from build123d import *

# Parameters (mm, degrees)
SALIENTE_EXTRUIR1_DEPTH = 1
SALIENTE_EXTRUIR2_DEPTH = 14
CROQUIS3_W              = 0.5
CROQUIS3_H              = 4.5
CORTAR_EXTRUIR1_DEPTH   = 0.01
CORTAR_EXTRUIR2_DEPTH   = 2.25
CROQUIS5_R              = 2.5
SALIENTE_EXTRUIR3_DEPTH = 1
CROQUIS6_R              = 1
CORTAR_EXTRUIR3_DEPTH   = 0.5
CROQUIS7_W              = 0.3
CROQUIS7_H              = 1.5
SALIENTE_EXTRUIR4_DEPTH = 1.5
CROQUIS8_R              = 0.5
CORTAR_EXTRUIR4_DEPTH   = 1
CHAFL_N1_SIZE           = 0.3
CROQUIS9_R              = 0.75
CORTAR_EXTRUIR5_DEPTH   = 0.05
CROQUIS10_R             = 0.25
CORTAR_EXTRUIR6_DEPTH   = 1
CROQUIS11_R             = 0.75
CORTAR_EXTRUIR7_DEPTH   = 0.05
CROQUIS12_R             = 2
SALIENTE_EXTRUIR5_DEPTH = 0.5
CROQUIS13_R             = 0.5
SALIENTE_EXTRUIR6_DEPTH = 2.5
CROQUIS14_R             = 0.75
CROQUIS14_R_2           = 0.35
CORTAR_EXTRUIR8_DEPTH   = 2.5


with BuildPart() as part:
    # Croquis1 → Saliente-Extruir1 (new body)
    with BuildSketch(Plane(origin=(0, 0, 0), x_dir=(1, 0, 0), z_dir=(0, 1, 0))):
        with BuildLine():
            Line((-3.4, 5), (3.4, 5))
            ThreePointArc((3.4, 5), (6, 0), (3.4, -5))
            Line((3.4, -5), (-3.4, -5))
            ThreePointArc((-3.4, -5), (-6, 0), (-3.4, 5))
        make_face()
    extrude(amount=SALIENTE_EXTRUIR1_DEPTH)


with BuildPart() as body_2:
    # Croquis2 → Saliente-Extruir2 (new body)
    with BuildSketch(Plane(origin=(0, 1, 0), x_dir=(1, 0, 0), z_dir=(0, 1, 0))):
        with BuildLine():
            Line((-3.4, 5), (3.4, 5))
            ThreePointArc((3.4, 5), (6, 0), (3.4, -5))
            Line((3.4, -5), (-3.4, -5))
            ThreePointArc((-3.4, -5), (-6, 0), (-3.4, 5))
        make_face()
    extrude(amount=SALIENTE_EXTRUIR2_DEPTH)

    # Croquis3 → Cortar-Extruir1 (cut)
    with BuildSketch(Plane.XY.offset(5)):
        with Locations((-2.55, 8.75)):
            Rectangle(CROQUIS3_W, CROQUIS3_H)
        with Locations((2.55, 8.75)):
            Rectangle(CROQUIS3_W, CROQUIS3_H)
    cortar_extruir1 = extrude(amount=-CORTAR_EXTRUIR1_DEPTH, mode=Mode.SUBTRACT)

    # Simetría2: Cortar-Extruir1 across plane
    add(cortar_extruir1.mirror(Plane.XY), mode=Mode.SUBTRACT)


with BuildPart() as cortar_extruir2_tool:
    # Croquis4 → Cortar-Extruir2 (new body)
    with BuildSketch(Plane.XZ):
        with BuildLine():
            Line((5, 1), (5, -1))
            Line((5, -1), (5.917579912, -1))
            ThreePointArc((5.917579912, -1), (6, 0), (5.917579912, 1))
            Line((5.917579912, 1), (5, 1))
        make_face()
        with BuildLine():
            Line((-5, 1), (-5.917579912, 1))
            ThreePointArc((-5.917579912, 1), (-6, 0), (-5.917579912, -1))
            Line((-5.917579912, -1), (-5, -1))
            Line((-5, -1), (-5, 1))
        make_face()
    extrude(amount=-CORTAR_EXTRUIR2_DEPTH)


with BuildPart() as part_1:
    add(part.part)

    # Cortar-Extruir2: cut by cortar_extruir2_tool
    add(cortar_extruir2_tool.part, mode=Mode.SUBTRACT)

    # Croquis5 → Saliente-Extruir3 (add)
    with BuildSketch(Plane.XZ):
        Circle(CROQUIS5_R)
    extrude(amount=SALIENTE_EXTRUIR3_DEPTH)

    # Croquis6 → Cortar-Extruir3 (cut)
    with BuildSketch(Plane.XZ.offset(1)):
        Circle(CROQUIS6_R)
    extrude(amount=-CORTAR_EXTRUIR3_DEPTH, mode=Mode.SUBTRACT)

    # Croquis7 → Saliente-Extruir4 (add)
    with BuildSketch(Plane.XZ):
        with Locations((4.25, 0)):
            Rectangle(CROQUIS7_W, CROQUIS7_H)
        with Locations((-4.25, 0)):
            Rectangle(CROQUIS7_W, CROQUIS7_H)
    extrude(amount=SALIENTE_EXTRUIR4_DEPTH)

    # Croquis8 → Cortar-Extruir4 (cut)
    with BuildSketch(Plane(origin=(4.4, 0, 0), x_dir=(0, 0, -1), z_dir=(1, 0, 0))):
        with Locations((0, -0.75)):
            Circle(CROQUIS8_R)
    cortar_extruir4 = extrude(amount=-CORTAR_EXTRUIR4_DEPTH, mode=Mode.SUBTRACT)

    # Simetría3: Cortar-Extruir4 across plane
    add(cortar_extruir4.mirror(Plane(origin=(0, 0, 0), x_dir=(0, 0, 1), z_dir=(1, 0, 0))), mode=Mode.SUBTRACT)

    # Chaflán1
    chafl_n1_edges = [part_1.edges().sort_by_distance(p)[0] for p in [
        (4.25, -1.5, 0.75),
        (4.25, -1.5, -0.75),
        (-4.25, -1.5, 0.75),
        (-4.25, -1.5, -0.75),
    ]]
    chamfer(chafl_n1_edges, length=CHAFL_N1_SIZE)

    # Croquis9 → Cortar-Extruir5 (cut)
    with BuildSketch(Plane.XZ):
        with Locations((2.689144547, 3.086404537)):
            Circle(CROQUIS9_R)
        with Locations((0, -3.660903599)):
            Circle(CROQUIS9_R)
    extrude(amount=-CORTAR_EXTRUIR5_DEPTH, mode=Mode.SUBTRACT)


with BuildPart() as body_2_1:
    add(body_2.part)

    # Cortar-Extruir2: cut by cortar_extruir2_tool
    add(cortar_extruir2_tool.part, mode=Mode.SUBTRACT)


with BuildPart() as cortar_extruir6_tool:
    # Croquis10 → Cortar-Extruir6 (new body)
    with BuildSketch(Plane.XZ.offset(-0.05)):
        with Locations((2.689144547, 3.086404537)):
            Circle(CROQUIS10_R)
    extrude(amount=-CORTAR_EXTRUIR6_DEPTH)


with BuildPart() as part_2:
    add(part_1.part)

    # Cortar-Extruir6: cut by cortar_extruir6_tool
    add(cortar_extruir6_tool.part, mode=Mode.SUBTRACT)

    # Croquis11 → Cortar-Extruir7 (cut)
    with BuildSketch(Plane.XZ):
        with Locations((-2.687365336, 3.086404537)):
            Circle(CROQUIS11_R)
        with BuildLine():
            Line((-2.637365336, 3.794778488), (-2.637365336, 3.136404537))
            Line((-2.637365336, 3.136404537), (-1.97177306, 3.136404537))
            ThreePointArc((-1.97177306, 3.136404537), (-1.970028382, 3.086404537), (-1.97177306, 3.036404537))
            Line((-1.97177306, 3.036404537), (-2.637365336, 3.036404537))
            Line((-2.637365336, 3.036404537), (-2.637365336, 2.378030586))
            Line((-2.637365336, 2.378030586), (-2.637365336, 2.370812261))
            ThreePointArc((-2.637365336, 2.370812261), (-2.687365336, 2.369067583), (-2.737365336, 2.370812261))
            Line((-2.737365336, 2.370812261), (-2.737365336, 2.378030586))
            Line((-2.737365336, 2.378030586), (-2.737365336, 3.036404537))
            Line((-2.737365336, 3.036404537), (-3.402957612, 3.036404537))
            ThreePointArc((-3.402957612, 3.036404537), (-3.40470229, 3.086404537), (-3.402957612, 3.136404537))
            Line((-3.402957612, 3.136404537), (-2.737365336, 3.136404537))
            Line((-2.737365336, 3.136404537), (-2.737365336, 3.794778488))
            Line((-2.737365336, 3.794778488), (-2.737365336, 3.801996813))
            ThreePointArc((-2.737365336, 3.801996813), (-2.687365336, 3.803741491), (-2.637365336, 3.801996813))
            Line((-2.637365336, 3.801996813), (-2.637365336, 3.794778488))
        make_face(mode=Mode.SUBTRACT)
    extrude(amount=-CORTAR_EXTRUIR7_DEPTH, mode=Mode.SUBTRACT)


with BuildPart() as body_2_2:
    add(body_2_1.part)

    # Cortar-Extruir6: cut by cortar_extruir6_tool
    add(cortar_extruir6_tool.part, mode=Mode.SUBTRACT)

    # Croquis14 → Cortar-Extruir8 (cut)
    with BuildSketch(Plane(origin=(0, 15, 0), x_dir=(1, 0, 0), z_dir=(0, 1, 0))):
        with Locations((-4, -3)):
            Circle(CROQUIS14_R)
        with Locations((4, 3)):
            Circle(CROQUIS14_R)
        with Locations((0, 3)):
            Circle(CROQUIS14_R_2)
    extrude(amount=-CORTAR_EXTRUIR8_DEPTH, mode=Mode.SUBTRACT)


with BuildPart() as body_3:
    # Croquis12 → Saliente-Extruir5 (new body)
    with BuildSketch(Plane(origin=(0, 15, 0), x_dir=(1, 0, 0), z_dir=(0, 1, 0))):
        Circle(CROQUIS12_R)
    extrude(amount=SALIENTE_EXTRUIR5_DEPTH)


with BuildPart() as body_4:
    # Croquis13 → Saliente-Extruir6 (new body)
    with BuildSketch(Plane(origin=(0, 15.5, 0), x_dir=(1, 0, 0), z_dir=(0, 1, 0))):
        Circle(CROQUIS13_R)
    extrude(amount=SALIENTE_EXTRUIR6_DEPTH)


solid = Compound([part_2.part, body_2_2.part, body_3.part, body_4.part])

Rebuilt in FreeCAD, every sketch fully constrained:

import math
import FreeCAD as App
import Part
import Sketcher

V = App.Vector
Q = App.Units.Quantity


def edges_at(feature, points):
    """Names of the edges that pass closest to the given points."""
    edges = feature.Shape.Edges
    near = lambda p: min(range(len(edges)), key=lambda i: edges[i].distToShape(Part.Vertex(*p))[0])
    return sorted({f"Edge{near(p) + 1}" for p in points})

doc = App.newDocument("Part")
body = doc.addObject("PartDesign::Body", "Body")

# Sketch on XZ plane
sketch1 = body.newObject("Sketcher::SketchObject", "Sketch")
sketch1.AttachmentSupport = (doc.getObject("XZ_Plane"), [""])
sketch1.MapMode = "FlatFace"
sketch1.addGeometry(Part.LineSegment(V(3, -5, 0), V(-3, -5, 0)), False)
sketch1.addGeometry(Part.ArcOfCircle(Part.Circle(V(0, 0, 0), V(0, 0, 1), 6), math.radians(125), math.radians(235)), False)
sketch1.addGeometry(Part.LineSegment(V(-3, 5, 0), V(3, 5, 0)), False)
sketch1.addGeometry(Part.ArcOfCircle(Part.Circle(V(0, 0, 0), V(0, 0, 1), 6), math.radians(-55), math.radians(55)), False)
sketch1.addConstraint(Sketcher.Constraint("Coincident", 0, 2, 1, 2))
sketch1.addConstraint(Sketcher.Constraint("Coincident", 1, 1, 2, 1))
sketch1.addConstraint(Sketcher.Constraint("Coincident", 2, 2, 3, 2))
sketch1.addConstraint(Sketcher.Constraint("Coincident", 3, 1, 0, 1))
sketch1.addConstraint(Sketcher.Constraint("Horizontal", 0))
sketch1.addConstraint(Sketcher.Constraint("Horizontal", 2))
sketch1.addConstraint(Sketcher.Constraint("Equal", 1, 3))
sketch1.addConstraint(Sketcher.Constraint("Symmetric", 1, 3, 3, 3, -1, 1))
sketch1.addConstraint(Sketcher.Constraint("Symmetric", 0, 2, 1, 1, -1))
sketch1.addConstraint(Sketcher.Constraint("DistanceX", 0, 2, 0, 1, Q("6.8 mm")))
sketch1.addConstraint(Sketcher.Constraint("DistanceY", 0, 2, -1, 1, Q("5 mm")))
sketch1.addConstraint(Sketcher.Constraint("Radius", 1, Q("6.107692 mm")))
pad1 = body.newObject("PartDesign::Pad", "Pad")
pad1.Profile = sketch1
pad1.Length = 1
pad1.Reversed = True
body2 = doc.addObject("PartDesign::Body", "Body001")

# Sketch on XZ plane
sketch2 = body2.newObject("Sketcher::SketchObject", "Sketch001")
sketch2.AttachmentSupport = (doc.getObject("XZ_Plane001"), [""])
sketch2.MapMode = "FlatFace"
sketch2.AttachmentOffset = App.Placement(V(0, 0, -1), App.Rotation())
sketch2.addGeometry(Part.LineSegment(V(3, -5, 0), V(-3, -5, 0)), False)
sketch2.addGeometry(Part.ArcOfCircle(Part.Circle(V(0, 0, 0), V(0, 0, 1), 6), math.radians(125), math.radians(235)), False)
sketch2.addGeometry(Part.LineSegment(V(-3, 5, 0), V(3, 5, 0)), False)
sketch2.addGeometry(Part.ArcOfCircle(Part.Circle(V(0, 0, 0), V(0, 0, 1), 6), math.radians(-55), math.radians(55)), False)
sketch2.addConstraint(Sketcher.Constraint("Coincident", 0, 2, 1, 2))
sketch2.addConstraint(Sketcher.Constraint("Coincident", 1, 1, 2, 1))
sketch2.addConstraint(Sketcher.Constraint("Coincident", 2, 2, 3, 2))
sketch2.addConstraint(Sketcher.Constraint("Coincident", 3, 1, 0, 1))
sketch2.addConstraint(Sketcher.Constraint("Horizontal", 0))
sketch2.addConstraint(Sketcher.Constraint("Horizontal", 2))
sketch2.addConstraint(Sketcher.Constraint("Equal", 1, 3))
sketch2.addConstraint(Sketcher.Constraint("Symmetric", 1, 3, 3, 3, -1, 1))
sketch2.addConstraint(Sketcher.Constraint("Symmetric", 0, 2, 1, 1, -1))
sketch2.addConstraint(Sketcher.Constraint("DistanceX", 0, 2, 0, 1, Q("6.8 mm")))
sketch2.addConstraint(Sketcher.Constraint("DistanceY", 0, 2, -1, 1, Q("5 mm")))
sketch2.addConstraint(Sketcher.Constraint("Radius", 1, Q("6.107692 mm")))
pad2 = body2.newObject("PartDesign::Pad", "Pad001")
pad2.Profile = sketch2
pad2.Length = 14
pad2.Reversed = True

# Sketch on XY plane
sketch3 = body2.newObject("Sketcher::SketchObject", "Sketch002")
sketch3.AttachmentSupport = (doc.getObject("XY_Plane001"), [""])
sketch3.MapMode = "FlatFace"
sketch3.AttachmentOffset = App.Placement(V(0, 0, 5), App.Rotation())
sketch3.addGeometry(Part.LineSegment(V(-2.8, 11, 0), V(-2.8, 6.5, 0)), False)
sketch3.addGeometry(Part.LineSegment(V(-2.8, 6.5, 0), V(-2.3, 6.5, 0)), False)
sketch3.addGeometry(Part.LineSegment(V(-2.3, 6.5, 0), V(-2.3, 11, 0)), False)
sketch3.addGeometry(Part.LineSegment(V(-2.3, 11, 0), V(-2.8, 11, 0)), False)
sketch3.addGeometry(Part.LineSegment(V(2.3, 11, 0), V(2.3, 6.5, 0)), False)
sketch3.addGeometry(Part.LineSegment(V(2.3, 6.5, 0), V(2.8, 6.5, 0)), False)
sketch3.addGeometry(Part.LineSegment(V(2.8, 6.5, 0), V(2.8, 11, 0)), False)
sketch3.addGeometry(Part.LineSegment(V(2.8, 11, 0), V(2.3, 11, 0)), False)
sketch3.addConstraint(Sketcher.Constraint("Coincident", 0, 2, 1, 1))
sketch3.addConstraint(Sketcher.Constraint("Coincident", 1, 2, 2, 1))
sketch3.addConstraint(Sketcher.Constraint("Coincident", 2, 2, 3, 1))
sketch3.addConstraint(Sketcher.Constraint("Coincident", 3, 2, 0, 1))
sketch3.addConstraint(Sketcher.Constraint("Coincident", 4, 2, 5, 1))
sketch3.addConstraint(Sketcher.Constraint("Coincident", 5, 2, 6, 1))
sketch3.addConstraint(Sketcher.Constraint("Coincident", 6, 2, 7, 1))
sketch3.addConstraint(Sketcher.Constraint("Coincident", 7, 2, 4, 1))
sketch3.addConstraint(Sketcher.Constraint("Vertical", 0))
sketch3.addConstraint(Sketcher.Constraint("Horizontal", 1))
sketch3.addConstraint(Sketcher.Constraint("Vertical", 2))
sketch3.addConstraint(Sketcher.Constraint("Horizontal", 3))
sketch3.addConstraint(Sketcher.Constraint("Vertical", 4))
sketch3.addConstraint(Sketcher.Constraint("Horizontal", 5))
sketch3.addConstraint(Sketcher.Constraint("Vertical", 6))
sketch3.addConstraint(Sketcher.Constraint("Horizontal", 7))
sketch3.addConstraint(Sketcher.Constraint("Symmetric", 1, 2, 4, 2, -2))
sketch3.addConstraint(Sketcher.Constraint("Symmetric", 3, 2, 6, 2, -2))
sketch3.addConstraint(Sketcher.Constraint("DistanceX", 1, 1, 1, 2, Q("0.5 mm")))
sketch3.addConstraint(Sketcher.Constraint("DistanceY", 0, 2, 0, 1, Q("4.5 mm")))
sketch3.addConstraint(Sketcher.Constraint("DistanceY", -1, 1, 2, 2, Q("11 mm")))
sketch3.addConstraint(Sketcher.Constraint("DistanceX", 0, 2, -1, 1, Q("2.8 mm")))
pocket1 = body2.newObject("PartDesign::Pocket", "Pocket")
pocket1.Profile = sketch3
pocket1.Length = 0.01
doc.recompute()

mirrored = body2.newObject("PartDesign::Mirrored", "Mirrored")
mirrored.Originals = [pocket1]
mirrored.MirrorPlane = (doc.getObject("XY_Plane001"), [""])
body2.Tip = mirrored
body3 = doc.addObject("PartDesign::Body", "Body002")
body3.AllowCompound = True

# Sketch on XZ plane
sketch4 = body3.newObject("Sketcher::SketchObject", "Sketch003")
sketch4.AttachmentSupport = (doc.getObject("XZ_Plane002"), [""])
sketch4.MapMode = "FlatFace"
sketch4.addGeometry(Part.LineSegment(V(5, 1, 0), V(5, -1, 0)), False)
sketch4.addGeometry(Part.LineSegment(V(5, -1, 0), V(5.9, -1, 0)), False)
sketch4.addGeometry(Part.ArcOfCircle(Part.Circle(V(-0.1, 0, 0), V(0, 0, 1), 6.1), math.radians(-9.42), math.radians(9.42)), False)
sketch4.addGeometry(Part.LineSegment(V(5.9, 1, 0), V(5, 1, 0)), False)
sketch4.addGeometry(Part.LineSegment(V(-5, 1, 0), V(-5.9, 1, 0)), False)
sketch4.addGeometry(Part.ArcOfCircle(Part.Circle(V(0.1, 0, 0), V(0, 0, 1), 6.1), math.radians(170.58), math.radians(189.42)), False)
sketch4.addGeometry(Part.LineSegment(V(-5.9, -1, 0), V(-5, -1, 0)), False)
sketch4.addGeometry(Part.LineSegment(V(-5, -1, 0), V(-5, 1, 0)), False)
sketch4.addConstraint(Sketcher.Constraint("Coincident", 0, 2, 1, 1))
sketch4.addConstraint(Sketcher.Constraint("Coincident", 1, 2, 2, 1))
sketch4.addConstraint(Sketcher.Constraint("Coincident", 2, 2, 3, 1))
sketch4.addConstraint(Sketcher.Constraint("Coincident", 3, 2, 0, 1))
sketch4.addConstraint(Sketcher.Constraint("Coincident", 4, 2, 5, 1))
sketch4.addConstraint(Sketcher.Constraint("Coincident", 5, 2, 6, 1))
sketch4.addConstraint(Sketcher.Constraint("Coincident", 6, 2, 7, 1))
sketch4.addConstraint(Sketcher.Constraint("Coincident", 7, 2, 4, 1))
sketch4.addConstraint(Sketcher.Constraint("Vertical", 0))
sketch4.addConstraint(Sketcher.Constraint("Horizontal", 1))
sketch4.addConstraint(Sketcher.Constraint("Horizontal", 3))
sketch4.addConstraint(Sketcher.Constraint("Horizontal", 4))
sketch4.addConstraint(Sketcher.Constraint("Horizontal", 6))
sketch4.addConstraint(Sketcher.Constraint("Vertical", 7))
sketch4.addConstraint(Sketcher.Constraint("Equal", 2, 5))
sketch4.addConstraint(Sketcher.Constraint("Symmetric", 2, 3, 5, 3, -1, 1))
sketch4.addConstraint(Sketcher.Constraint("Symmetric", 3, 2, 6, 2, -1, 1))
sketch4.addConstraint(Sketcher.Constraint("Symmetric", 2, 2, 4, 2, -2))
sketch4.addConstraint(Sketcher.Constraint("Horizontal", 1, 2, 5, 2))
sketch4.addConstraint(Sketcher.Constraint("DistanceY", 0, 2, 0, 1, Q("2 mm")))
sketch4.addConstraint(Sketcher.Constraint("DistanceX", -1, 1, 0, 2, Q("5 mm")))
sketch4.addConstraint(Sketcher.Constraint("Radius", 2, Q("6.107692 mm")))
sketch4.addConstraint(Sketcher.Constraint("DistanceX", 1, 1, 1, 2, Q("0.91758 mm")))
pad3 = body3.newObject("PartDesign::Pad", "Pad002")
pad3.Profile = sketch4
pad3.Length = 2.25
pad3.Reversed = True
doc.recompute()

body4 = doc.addObject("PartDesign::Body", "Body003")
body4.BaseFeature = body3
boolean = body.newObject("PartDesign::Boolean", "Boolean")
boolean.Type = "Cut"
boolean.addObjects([body4])
doc.recompute()

# Sketch on XZ plane
sketch5 = body.newObject("Sketcher::SketchObject", "Sketch004")
sketch5.AttachmentSupport = (doc.getObject("XZ_Plane"), [""])
sketch5.MapMode = "FlatFace"
sketch5.addGeometry(Part.Circle(V(0, 0, 0), V(0, 0, 1), 2.5), False)
sketch5.addConstraint(Sketcher.Constraint("Coincident", 0, 3, -1, 1))
sketch5.addConstraint(Sketcher.Constraint("Diameter", 0, Q("5 mm")))
pad4 = body.newObject("PartDesign::Pad", "Pad003")
pad4.Profile = sketch5
pad4.Length = 1

# Sketch on XZ plane
sketch6 = body.newObject("Sketcher::SketchObject", "Sketch005")
sketch6.AttachmentSupport = (doc.getObject("XZ_Plane"), [""])
sketch6.MapMode = "FlatFace"
sketch6.AttachmentOffset = App.Placement(V(0, 0, 1), App.Rotation())
sketch6.addGeometry(Part.Circle(V(0, 0, 0), V(0, 0, 1), 1), False)
sketch6.addConstraint(Sketcher.Constraint("Coincident", 0, 3, -1, 1))
sketch6.addConstraint(Sketcher.Constraint("Diameter", 0, Q("2 mm")))
pocket2 = body.newObject("PartDesign::Pocket", "Pocket001")
pocket2.Profile = sketch6
pocket2.Length = 0.5

# Sketch on XZ plane
sketch7 = body.newObject("Sketcher::SketchObject", "Sketch006")
sketch7.AttachmentSupport = (doc.getObject("XZ_Plane"), [""])
sketch7.MapMode = "FlatFace"
sketch7.addGeometry(Part.LineSegment(V(4.1, 0.75, 0), V(4.1, -0.75, 0)), False)
sketch7.addGeometry(Part.LineSegment(V(4.1, -0.75, 0), V(4.4, -0.75, 0)), False)
sketch7.addGeometry(Part.LineSegment(V(4.4, -0.75, 0), V(4.4, 0.75, 0)), False)
sketch7.addGeometry(Part.LineSegment(V(4.4, 0.75, 0), V(4.1, 0.75, 0)), False)
sketch7.addGeometry(Part.LineSegment(V(-4.4, 0.75, 0), V(-4.4, -0.75, 0)), False)
sketch7.addGeometry(Part.LineSegment(V(-4.4, -0.75, 0), V(-4.1, -0.75, 0)), False)
sketch7.addGeometry(Part.LineSegment(V(-4.1, -0.75, 0), V(-4.1, 0.75, 0)), False)
sketch7.addGeometry(Part.LineSegment(V(-4.1, 0.75, 0), V(-4.4, 0.75, 0)), False)
sketch7.addConstraint(Sketcher.Constraint("Coincident", 0, 2, 1, 1))
sketch7.addConstraint(Sketcher.Constraint("Coincident", 1, 2, 2, 1))
sketch7.addConstraint(Sketcher.Constraint("Coincident", 2, 2, 3, 1))
sketch7.addConstraint(Sketcher.Constraint("Coincident", 3, 2, 0, 1))
sketch7.addConstraint(Sketcher.Constraint("Coincident", 4, 2, 5, 1))
sketch7.addConstraint(Sketcher.Constraint("Coincident", 5, 2, 6, 1))
sketch7.addConstraint(Sketcher.Constraint("Coincident", 6, 2, 7, 1))
sketch7.addConstraint(Sketcher.Constraint("Coincident", 7, 2, 4, 1))
sketch7.addConstraint(Sketcher.Constraint("Vertical", 0))
sketch7.addConstraint(Sketcher.Constraint("Horizontal", 1))
sketch7.addConstraint(Sketcher.Constraint("Vertical", 2))
sketch7.addConstraint(Sketcher.Constraint("Horizontal", 3))
sketch7.addConstraint(Sketcher.Constraint("Vertical", 4))
sketch7.addConstraint(Sketcher.Constraint("Horizontal", 5))
sketch7.addConstraint(Sketcher.Constraint("Vertical", 6))
sketch7.addConstraint(Sketcher.Constraint("Horizontal", 7))
sketch7.addConstraint(Sketcher.Constraint("Symmetric", 2, 2, 4, 2, -1, 1))
sketch7.addConstraint(Sketcher.Constraint("Symmetric", 0, 2, 6, 2, -1, 1))
sketch7.addConstraint(Sketcher.Constraint("Horizontal", 1, 2, 4, 2))
sketch7.addConstraint(Sketcher.Constraint("DistanceX", 1, 1, 1, 2, Q("0.3 mm")))
sketch7.addConstraint(Sketcher.Constraint("DistanceY", 0, 2, 0, 1, Q("1.5 mm")))
sketch7.addConstraint(Sketcher.Constraint("DistanceX", -1, 1, 0, 2, Q("4.1 mm")))
pad5 = body.newObject("PartDesign::Pad", "Pad004")
pad5.Profile = sketch7
pad5.Length = 1.5

# Sketch on YZ plane
sketch8 = body.newObject("Sketcher::SketchObject", "Sketch007")
sketch8.AttachmentSupport = (doc.getObject("YZ_Plane"), [""])
sketch8.MapMode = "FlatFace"
sketch8.AttachmentOffset = App.Placement(V(0, 0, 4.4), App.Rotation())
sketch8.addGeometry(Part.Circle(V(-0.8, 0, 0), V(0, 0, 1), 0.5), False)
sketch8.addConstraint(Sketcher.Constraint("PointOnObject", 0, 3, -1))
sketch8.addConstraint(Sketcher.Constraint("Diameter", 0, Q("1 mm")))
sketch8.addConstraint(Sketcher.Constraint("DistanceX", 0, 3, -1, 1, Q("0.75 mm")))
pocket3 = body.newObject("PartDesign::Pocket", "Pocket002")
pocket3.Profile = sketch8
pocket3.Length = 1
doc.recompute()

mirrored2 = body.newObject("PartDesign::Mirrored", "Mirrored001")
mirrored2.Originals = [pocket3]
mirrored2.MirrorPlane = (doc.getObject("YZ_Plane"), [""])
body.Tip = mirrored2
doc.recompute()

chamfer = body.newObject("PartDesign::Chamfer", "Chamfer")
chamfer.Base = (mirrored2, edges_at(mirrored2, [
    (4.25, -1.5, 0.75),
    (4.25, -1.5, -0.75),
    (-4.25, -1.5, 0.75),
    (-4.25, -1.5, -0.75),
]))
chamfer.Size = 0.3

# Sketch on XZ plane
sketch9 = body.newObject("Sketcher::SketchObject", "Sketch008")
sketch9.AttachmentSupport = (doc.getObject("XZ_Plane"), [""])
sketch9.MapMode = "FlatFace"
sketch9.addGeometry(Part.Circle(V(2.7, 3.1, 0), V(0, 0, 1), 0.8), False)
sketch9.addGeometry(Part.Circle(V(0, -3.7, 0), V(0, 0, 1), 0.8), False)
sketch9.addConstraint(Sketcher.Constraint("Equal", 0, 1))
sketch9.addConstraint(Sketcher.Constraint("PointOnObject", 1, 3, -2))
sketch9.addConstraint(Sketcher.Constraint("Diameter", 0, Q("1.5 mm")))
sketch9.addConstraint(Sketcher.Constraint("DistanceY", 1, 3, 0, 3, Q("6.747308 mm")))
sketch9.addConstraint(Sketcher.Constraint("DistanceX", -1, 1, 0, 3, Q("2.689145 mm")))
sketch9.addConstraint(Sketcher.Constraint("DistanceY", -1, 1, 0, 3, Q("3.086405 mm")))
pocket4 = body.newObject("PartDesign::Pocket", "Pocket003")
pocket4.Profile = sketch9
pocket4.Length = 0.05
doc.recompute()

boolean2 = body2.newObject("PartDesign::Boolean", "Boolean001")
boolean2.Type = "Cut"
boolean2.addObjects([body3])
body5 = doc.addObject("PartDesign::Body", "Body004")

# Sketch on XZ plane
sketch10 = body5.newObject("Sketcher::SketchObject", "Sketch009")
sketch10.AttachmentSupport = (doc.getObject("XZ_Plane004"), [""])
sketch10.MapMode = "FlatFace"
sketch10.AttachmentOffset = App.Placement(V(0, 0, -0.05), App.Rotation())
sketch10.addGeometry(Part.Circle(V(2.69, 3.09, 0), V(0, 0, 1), 0.25), False)
sketch10.addConstraint(Sketcher.Constraint("Diameter", 0, Q("0.5 mm")))
sketch10.addConstraint(Sketcher.Constraint("DistanceX", -1, 1, 0, 3, Q("2.689145 mm")))
sketch10.addConstraint(Sketcher.Constraint("DistanceY", -1, 1, 0, 3, Q("3.086405 mm")))
pad6 = body5.newObject("PartDesign::Pad", "Pad005")
pad6.Profile = sketch10
pad6.Length = 1
pad6.Reversed = True
doc.recompute()

body6 = doc.addObject("PartDesign::Body", "Body005")
body6.BaseFeature = body5
boolean3 = body.newObject("PartDesign::Boolean", "Boolean002")
boolean3.Type = "Cut"
boolean3.addObjects([body6])
doc.recompute()

# Sketch on XZ plane
sketch11 = body.newObject("Sketcher::SketchObject", "Sketch010")
sketch11.AttachmentSupport = (doc.getObject("XZ_Plane"), [""])
sketch11.MapMode = "FlatFace"
sketch11.addGeometry(Part.Circle(V(-2.69, 3.09, 0), V(0, 0, 1), 0.75), False)
sketch11.addGeometry(Part.LineSegment(V(-2.64, 3.8, 0), V(-2.64, 3.14, 0)), False)
sketch11.addGeometry(Part.LineSegment(V(-2.64, 3.14, 0), V(-1.97, 3.14, 0)), False)
sketch11.addGeometry(Part.ArcOfCircle(Part.Circle(V(-2.69, 3.09, 0), V(0, 0, 1), 0.72), math.radians(-4), math.radians(4)), False)
sketch11.addGeometry(Part.LineSegment(V(-1.97, 3.04, 0), V(-2.64, 3.04, 0)), False)
sketch11.addGeometry(Part.LineSegment(V(-2.64, 3.04, 0), V(-2.64, 2.37, 0)), False)
sketch11.addGeometry(Part.ArcOfCircle(Part.Circle(V(-2.69, 3.09, 0), V(0, 0, 1), 0.72), math.radians(-94), math.radians(-86)), False)
sketch11.addGeometry(Part.LineSegment(V(-2.74, 2.37, 0), V(-2.74, 3.04, 0)), False)
sketch11.addGeometry(Part.LineSegment(V(-2.74, 3.04, 0), V(-3.4, 3.04, 0)), False)
sketch11.addGeometry(Part.ArcOfCircle(Part.Circle(V(-2.69, 3.09, 0), V(0, 0, 1), 0.72), math.radians(176), math.radians(184)), False)
sketch11.addGeometry(Part.LineSegment(V(-3.4, 3.14, 0), V(-2.74, 3.14, 0)), False)
sketch11.addGeometry(Part.LineSegment(V(-2.74, 3.14, 0), V(-2.74, 3.8, 0)), False)
sketch11.addGeometry(Part.ArcOfCircle(Part.Circle(V(-2.69, 3.09, 0), V(0, 0, 1), 0.72), math.radians(86), math.radians(94)), False)
sketch11.addConstraint(Sketcher.Constraint("Coincident", 1, 2, 2, 1))
sketch11.addConstraint(Sketcher.Constraint("Coincident", 2, 2, 3, 2))
sketch11.addConstraint(Sketcher.Constraint("Coincident", 3, 1, 4, 1))
sketch11.addConstraint(Sketcher.Constraint("Coincident", 4, 2, 5, 1))
sketch11.addConstraint(Sketcher.Constraint("Coincident", 5, 2, 6, 2))
sketch11.addConstraint(Sketcher.Constraint("Coincident", 6, 1, 7, 1))
sketch11.addConstraint(Sketcher.Constraint("Coincident", 7, 2, 8, 1))
sketch11.addConstraint(Sketcher.Constraint("Coincident", 8, 2, 9, 2))
sketch11.addConstraint(Sketcher.Constraint("Coincident", 9, 1, 10, 1))
sketch11.addConstraint(Sketcher.Constraint("Coincident", 10, 2, 11, 1))
sketch11.addConstraint(Sketcher.Constraint("Coincident", 11, 2, 12, 2))
sketch11.addConstraint(Sketcher.Constraint("Coincident", 12, 1, 1, 1))
sketch11.addConstraint(Sketcher.Constraint("Vertical", 1))
sketch11.addConstraint(Sketcher.Constraint("Horizontal", 2))
sketch11.addConstraint(Sketcher.Constraint("Horizontal", 4))
sketch11.addConstraint(Sketcher.Constraint("Vertical", 5))
sketch11.addConstraint(Sketcher.Constraint("Vertical", 7))
sketch11.addConstraint(Sketcher.Constraint("Horizontal", 8))
sketch11.addConstraint(Sketcher.Constraint("Horizontal", 10))
sketch11.addConstraint(Sketcher.Constraint("Vertical", 11))
sketch11.addConstraint(Sketcher.Constraint("Coincident", 3, 3, 0, 3))
sketch11.addConstraint(Sketcher.Constraint("Coincident", 6, 3, 0, 3))
sketch11.addConstraint(Sketcher.Constraint("Coincident", 9, 3, 0, 3))
sketch11.addConstraint(Sketcher.Constraint("Coincident", 12, 3, 0, 3))
sketch11.addConstraint(Sketcher.Constraint("Equal", 3, 6))
sketch11.addConstraint(Sketcher.Constraint("Equal", 6, 9))
sketch11.addConstraint(Sketcher.Constraint("Equal", 9, 12))
sketch11.addConstraint(Sketcher.Constraint("Horizontal", 5, 2, 6, 1))
sketch11.addConstraint(Sketcher.Constraint("Horizontal", 4, 2, 7, 2))
sketch11.addConstraint(Sketcher.Constraint("Horizontal", 2, 2, 9, 1))
sketch11.addConstraint(Sketcher.Constraint("Horizontal", 11, 2, 12, 1))
sketch11.addConstraint(Sketcher.Constraint("Vertical", 2, 2, 3, 1))
sketch11.addConstraint(Sketcher.Constraint("Vertical", 1, 2, 4, 2))
sketch11.addConstraint(Sketcher.Constraint("Equal", 10, 1))
sketch11.addConstraint(Sketcher.Constraint("Diameter", 0, Q("1.5 mm")))
sketch11.addConstraint(Sketcher.Constraint("DistanceY", 3, 1, 2, 2, Q("0.1 mm")))
sketch11.addConstraint(Sketcher.Constraint("Radius", 3, Q("0.717337 mm")))
sketch11.addConstraint(Sketcher.Constraint("DistanceX", 0, 3, -1, 1, Q("2.687365 mm")))
sketch11.addConstraint(Sketcher.Constraint("DistanceY", -1, 1, 0, 3, Q("3.086405 mm")))
pocket5 = body.newObject("PartDesign::Pocket", "Pocket004")
pocket5.Profile = sketch11
pocket5.Length = 0.05
doc.recompute()

boolean4 = body2.newObject("PartDesign::Boolean", "Boolean003")
boolean4.Type = "Cut"
boolean4.addObjects([body5])

# Sketch on XZ plane
sketch12 = body2.newObject("Sketcher::SketchObject", "Sketch011")
sketch12.AttachmentSupport = (doc.getObject("XZ_Plane001"), [""])
sketch12.MapMode = "FlatFace"
sketch12.AttachmentOffset = App.Placement(V(0, 0, -15), App.Rotation())
sketch12.addGeometry(Part.Circle(V(-4, 3, 0), V(0, 0, 1), 0.75), False)
sketch12.addGeometry(Part.Circle(V(4, -3, 0), V(0, 0, 1), 0.75), False)
sketch12.addGeometry(Part.Circle(V(0, -3, 0), V(0, 0, 1), 0.35), False)
sketch12.addConstraint(Sketcher.Constraint("Equal", 0, 1))
sketch12.addConstraint(Sketcher.Constraint("Symmetric", 0, 3, 1, 3, -1, 1))
sketch12.addConstraint(Sketcher.Constraint("PointOnObject", 2, 3, -2))
sketch12.addConstraint(Sketcher.Constraint("Horizontal", 1, 3, 2, 3))
sketch12.addConstraint(Sketcher.Constraint("Diameter", 0, Q("1.5 mm")))
sketch12.addConstraint(Sketcher.Constraint("Diameter", 2, Q("0.7 mm")))
sketch12.addConstraint(Sketcher.Constraint("DistanceX", 0, 3, -1, 1, Q("4 mm")))
sketch12.addConstraint(Sketcher.Constraint("DistanceY", -1, 1, 0, 3, Q("3 mm")))
pocket6 = body2.newObject("PartDesign::Pocket", "Pocket005")
pocket6.Profile = sketch12
pocket6.Length = 2.5
pocket6.Reversed = True
body7 = doc.addObject("PartDesign::Body", "Body006")

# Sketch on XZ plane
sketch13 = body7.newObject("Sketcher::SketchObject", "Sketch012")
sketch13.AttachmentSupport = (doc.getObject("XZ_Plane006"), [""])
sketch13.MapMode = "FlatFace"
sketch13.AttachmentOffset = App.Placement(V(0, 0, -15), App.Rotation())
sketch13.addGeometry(Part.Circle(V(0, 0, 0), V(0, 0, 1), 2), False)
sketch13.addConstraint(Sketcher.Constraint("Coincident", 0, 3, -1, 1))
sketch13.addConstraint(Sketcher.Constraint("Diameter", 0, Q("4 mm")))
pad7 = body7.newObject("PartDesign::Pad", "Pad006")
pad7.Profile = sketch13
pad7.Length = 0.5
pad7.Reversed = True
body8 = doc.addObject("PartDesign::Body", "Body007")

# Sketch on XZ plane
sketch14 = body8.newObject("Sketcher::SketchObject", "Sketch013")
sketch14.AttachmentSupport = (doc.getObject("XZ_Plane007"), [""])
sketch14.MapMode = "FlatFace"
sketch14.AttachmentOffset = App.Placement(V(0, 0, -15.5), App.Rotation())
sketch14.addGeometry(Part.Circle(V(0, 0, 0), V(0, 0, 1), 0.5), False)
sketch14.addConstraint(Sketcher.Constraint("Coincident", 0, 3, -1, 1))
sketch14.addConstraint(Sketcher.Constraint("Diameter", 0, Q("1 mm")))
pad8 = body8.newObject("PartDesign::Pad", "Pad007")
pad8.Profile = sketch14
pad8.Length = 2.5
pad8.Reversed = True

doc.recompute()
